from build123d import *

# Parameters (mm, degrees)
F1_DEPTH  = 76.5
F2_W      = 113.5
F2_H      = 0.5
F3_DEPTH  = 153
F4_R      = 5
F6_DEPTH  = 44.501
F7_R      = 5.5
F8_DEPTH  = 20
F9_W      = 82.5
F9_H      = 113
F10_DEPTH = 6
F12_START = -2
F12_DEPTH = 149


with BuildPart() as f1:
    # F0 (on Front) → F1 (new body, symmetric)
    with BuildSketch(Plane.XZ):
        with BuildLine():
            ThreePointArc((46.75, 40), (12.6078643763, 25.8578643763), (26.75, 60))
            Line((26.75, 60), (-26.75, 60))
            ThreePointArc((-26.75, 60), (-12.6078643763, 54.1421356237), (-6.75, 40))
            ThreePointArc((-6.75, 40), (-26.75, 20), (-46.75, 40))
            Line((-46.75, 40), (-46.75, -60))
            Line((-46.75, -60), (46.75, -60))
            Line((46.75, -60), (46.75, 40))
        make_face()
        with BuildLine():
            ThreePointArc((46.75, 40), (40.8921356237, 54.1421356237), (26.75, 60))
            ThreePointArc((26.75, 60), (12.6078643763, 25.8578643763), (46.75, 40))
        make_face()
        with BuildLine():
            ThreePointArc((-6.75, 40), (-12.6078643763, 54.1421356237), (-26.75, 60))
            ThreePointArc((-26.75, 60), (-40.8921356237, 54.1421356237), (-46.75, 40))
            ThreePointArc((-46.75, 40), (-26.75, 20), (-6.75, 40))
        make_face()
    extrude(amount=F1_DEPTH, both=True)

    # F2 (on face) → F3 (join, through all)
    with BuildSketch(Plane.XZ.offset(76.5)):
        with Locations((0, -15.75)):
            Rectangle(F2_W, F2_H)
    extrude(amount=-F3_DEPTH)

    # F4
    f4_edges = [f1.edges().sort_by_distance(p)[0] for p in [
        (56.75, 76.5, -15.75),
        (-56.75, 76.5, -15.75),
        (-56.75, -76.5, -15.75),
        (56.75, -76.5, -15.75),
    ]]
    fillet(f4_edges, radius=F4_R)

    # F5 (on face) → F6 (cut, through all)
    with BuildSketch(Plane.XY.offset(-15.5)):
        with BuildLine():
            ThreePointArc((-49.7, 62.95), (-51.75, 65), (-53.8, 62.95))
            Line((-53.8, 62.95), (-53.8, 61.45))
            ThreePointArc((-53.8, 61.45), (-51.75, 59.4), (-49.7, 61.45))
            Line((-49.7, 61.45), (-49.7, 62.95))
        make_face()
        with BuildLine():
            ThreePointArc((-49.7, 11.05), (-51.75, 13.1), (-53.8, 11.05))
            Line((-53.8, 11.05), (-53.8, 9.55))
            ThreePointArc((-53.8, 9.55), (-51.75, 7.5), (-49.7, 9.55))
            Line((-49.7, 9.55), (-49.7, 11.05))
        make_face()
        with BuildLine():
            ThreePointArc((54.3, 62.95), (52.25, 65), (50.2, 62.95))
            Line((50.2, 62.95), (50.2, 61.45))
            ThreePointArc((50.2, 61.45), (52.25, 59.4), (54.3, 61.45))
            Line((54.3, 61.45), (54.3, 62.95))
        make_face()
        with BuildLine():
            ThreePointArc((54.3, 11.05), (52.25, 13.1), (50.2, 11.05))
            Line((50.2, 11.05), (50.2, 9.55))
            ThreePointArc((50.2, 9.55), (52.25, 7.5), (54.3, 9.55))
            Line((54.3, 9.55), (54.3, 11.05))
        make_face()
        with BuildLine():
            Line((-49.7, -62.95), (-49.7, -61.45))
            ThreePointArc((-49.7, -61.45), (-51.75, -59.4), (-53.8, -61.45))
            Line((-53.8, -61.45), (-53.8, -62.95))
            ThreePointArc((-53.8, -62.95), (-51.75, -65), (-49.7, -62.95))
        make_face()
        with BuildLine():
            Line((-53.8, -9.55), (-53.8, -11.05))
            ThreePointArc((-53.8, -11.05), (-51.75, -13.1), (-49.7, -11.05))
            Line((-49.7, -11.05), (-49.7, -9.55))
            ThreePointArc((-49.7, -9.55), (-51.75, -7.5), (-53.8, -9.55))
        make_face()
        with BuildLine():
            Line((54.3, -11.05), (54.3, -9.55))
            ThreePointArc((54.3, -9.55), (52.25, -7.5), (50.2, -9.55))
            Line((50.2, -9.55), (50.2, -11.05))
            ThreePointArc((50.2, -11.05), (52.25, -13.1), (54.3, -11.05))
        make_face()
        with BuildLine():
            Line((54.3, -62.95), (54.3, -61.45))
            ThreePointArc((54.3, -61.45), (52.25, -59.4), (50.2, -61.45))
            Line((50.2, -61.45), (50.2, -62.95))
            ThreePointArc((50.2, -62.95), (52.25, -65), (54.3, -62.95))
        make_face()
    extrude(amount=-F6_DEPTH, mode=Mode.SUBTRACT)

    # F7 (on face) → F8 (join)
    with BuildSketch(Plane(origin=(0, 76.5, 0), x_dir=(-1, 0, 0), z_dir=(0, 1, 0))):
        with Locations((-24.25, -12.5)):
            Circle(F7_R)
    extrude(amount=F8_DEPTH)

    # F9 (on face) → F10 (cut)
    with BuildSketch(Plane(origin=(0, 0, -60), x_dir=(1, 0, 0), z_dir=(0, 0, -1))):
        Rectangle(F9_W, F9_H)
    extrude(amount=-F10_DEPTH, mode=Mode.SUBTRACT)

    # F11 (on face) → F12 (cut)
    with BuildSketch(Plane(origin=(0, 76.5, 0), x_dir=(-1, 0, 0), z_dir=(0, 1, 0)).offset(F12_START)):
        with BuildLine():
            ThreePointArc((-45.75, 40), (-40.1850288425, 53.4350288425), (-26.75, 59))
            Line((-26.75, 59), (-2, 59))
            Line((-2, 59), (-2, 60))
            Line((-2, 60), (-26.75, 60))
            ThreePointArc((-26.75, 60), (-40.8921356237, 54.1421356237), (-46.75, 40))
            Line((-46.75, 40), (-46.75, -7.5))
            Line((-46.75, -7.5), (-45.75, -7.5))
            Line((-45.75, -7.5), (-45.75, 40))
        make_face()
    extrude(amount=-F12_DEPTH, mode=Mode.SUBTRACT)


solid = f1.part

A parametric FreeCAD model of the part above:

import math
import FreeCAD as App
import Part
import Sketcher

V = App.Vector
Q = App.Units.Quantity


def edges_at(feature, points):
    """Names of the edges that pass closest to the given points."""
    edges = feature.Shape.Edges
    near = lambda p: min(range(len(edges)), key=lambda i: edges[i].distToShape(Part.Vertex(*p))[0])
    return sorted({f"Edge{near(p) + 1}" for p in points})

doc = App.newDocument("Part")
body = doc.addObject("PartDesign::Body", "Body")

sketch1 = doc.addObject("Sketcher::SketchObject", "Sketch")
body.addObject(sketch1)
sketch1.AttachmentSupport = (doc.XZ_Plane, [""])
sketch1.MapMode = "FlatFace"
sketch1.addGeometry([
    Part.LineSegment(V(27, 60, 0), V(-27, 60, 0)),
    Part.ArcOfCircle(Part.Circle(V(-27, 40, 0), V(0, 0, 1), 20), math.radians(90), math.radians(180)),
    Part.LineSegment(V(-47, 40, 0), V(-47, -60, 0)),
    Part.LineSegment(V(-47, -60, 0), V(47, -60, 0)),
    Part.LineSegment(V(47, -60, 0), V(47, 40, 0)),
    Part.ArcOfCircle(Part.Circle(V(27, 40, 0), V(0, 0, 1), 20), math.radians(0), math.radians(90)),
], False)
sketch1.addConstraint([
    Sketcher.Constraint("Tangent", 0, 2, 1, 1),
    Sketcher.Constraint("Tangent", 1, 2, 2, 1),
    Sketcher.Constraint("Coincident", 2, 2, 3, 1),
    Sketcher.Constraint("Coincident", 3, 2, 4, 1),
    Sketcher.Constraint("Tangent", 4, 2, 5, 1),
    Sketcher.Constraint("Tangent", 5, 2, 0, 1),
    Sketcher.Constraint("Horizontal", 0),
    Sketcher.Constraint("Vertical", 2),
    Sketcher.Constraint("Horizontal", 3),
    Sketcher.Constraint("Vertical", 4),
    Sketcher.Constraint("Equal", 1, 5),
    Sketcher.Constraint("Radius", 1, Q("20 mm")),
    Sketcher.Constraint("DistanceY", 2, 2, 2, 1, Q("100 mm")),
    Sketcher.Constraint("DistanceX", 0, 2, 0, 1, Q("53.5 mm")),
    Sketcher.Constraint("DistanceY", -1, 1, 1, 3, Q("40 mm")),
    Sketcher.Constraint("DistanceX", 1, 3, -1, 1, Q("26.75 mm")),
])
pad1 = doc.addObject("PartDesign::Pad", "Pad")
body.addObject(pad1)
pad1.Profile = sketch1
pad1.Length = 153
pad1.Midplane = True

sketch2 = doc.addObject("Sketcher::SketchObject", "Sketch001")
body.addObject(sketch2)
sketch2.AttachmentSupport = (doc.XZ_Plane, [""])
sketch2.MapMode = "FlatFace"
sketch2.AttachmentOffset = App.Placement(V(0, 0, 76.5), App.Rotation())
sketch2.addGeometry([
    Part.LineSegment(V(-56.8, -15.5, 0), V(-56.8, -16, 0)),
    Part.LineSegment(V(-56.8, -16, 0), V(56.8, -16, 0)),
    Part.LineSegment(V(56.8, -16, 0), V(56.8, -15.5, 0)),
    Part.LineSegment(V(56.8, -15.5, 0), V(-56.8, -15.5, 0)),
], False)
sketch2.addConstraint([
    Sketcher.Constraint("Coincident", 0, 2, 1, 1),
    Sketcher.Constraint("Coincident", 1, 2, 2, 1),
    Sketcher.Constraint("Coincident", 2, 2, 3, 1),
    Sketcher.Constraint("Coincident", 3, 2, 0, 1),
    Sketcher.Constraint("Vertical", 0),
    Sketcher.Constraint("Horizontal", 1),
    Sketcher.Constraint("Vertical", 2),
    Sketcher.Constraint("Horizontal", 3),
    Sketcher.Constraint("DistanceX", 1, 1, 1, 2, Q("113.5 mm")),
    Sketcher.Constraint("DistanceY", 0, 2, 0, 1, Q("0.5 mm")),
    Sketcher.Constraint("DistanceY", 0, 2, -1, 1, Q("16 mm")),
    Sketcher.Constraint("DistanceX", 0, 2, -1, 1, Q("56.75 mm")),
])
pad2 = doc.addObject("PartDesign::Pad", "Pad001")
body.addObject(pad2)
pad2.Profile = sketch2
pad2.Type = "UpToLast"
pad2.Reversed = True
doc.recompute()

fillet = doc.addObject("PartDesign::Fillet", "Fillet")
body.addObject(fillet)
fillet.Base = (pad2, edges_at(pad2, [
    (56.75, 76.5, -15.75),
    (-56.75, 76.5, -15.75),
    (-56.75, -76.5, -15.75),
    (56.75, -76.5, -15.75),
]))
fillet.Radius = 5

sketch3 = doc.addObject("Sketcher::SketchObject", "Sketch002")
body.addObject(sketch3)
sketch3.AttachmentSupport = (doc.XY_Plane, [""])
sketch3.MapMode = "FlatFace"
sketch3.AttachmentOffset = App.Placement(V(0, 0, -15.5), App.Rotation())
sketch3.addGeometry([
    Part.ArcOfCircle(Part.Circle(V(-51.8, 63, 0), V(0, 0, 1), 2), math.radians(0), math.radians(180)),
    Part.LineSegment(V(-53.8, 63, 0), V(-53.8, 61.5, 0)),
    Part.ArcOfCircle(Part.Circle(V(-51.8, 61.5, 0), V(0, 0, 1), 2), math.radians(180), math.radians(360)),
    Part.LineSegment(V(-49.7, 61.5, 0), V(-49.7, 63, 0)),
    Part.ArcOfCircle(Part.Circle(V(-51.8, 11.1, 0), V(0, 0, 1), 2), math.radians(0), math.radians(180)),
    Part.LineSegment(V(-53.8, 11.1, 0), V(-53.8, 9.6, 0)),
    Part.ArcOfCircle(Part.Circle(V(-51.8, 9.6, 0), V(0, 0, 1), 2), math.radians(180), math.radians(360)),
    Part.LineSegment(V(-49.7, 9.6, 0), V(-49.7, 11.1, 0)),
    Part.ArcOfCircle(Part.Circle(V(52.2, 63, 0), V(0, 0, 1), 2), math.radians(0), math.radians(180)),
    Part.LineSegment(V(50.2, 63, 0), V(50.2, 61.5, 0)),
    Part.ArcOfCircle(Part.Circle(V(52.2, 61.5, 0), V(0, 0, 1), 2), math.radians(180), math.radians(360)),
    Part.LineSegment(V(54.3, 61.5, 0), V(54.3, 63, 0)),
    Part.ArcOfCircle(Part.Circle(V(52.2, 11.1, 0), V(0, 0, 1), 2), math.radians(0), math.radians(180)),
    Part.LineSegment(V(50.2, 11.1, 0), V(50.2, 9.6, 0)),
    Part.ArcOfCircle(Part.Circle(V(52.2, 9.6, 0), V(0, 0, 1), 2), math.radians(180), math.radians(360)),
    Part.LineSegment(V(54.3, 9.6, 0), V(54.3, 11.1, 0)),
    Part.LineSegment(V(-49.7, -63, 0), V(-49.7, -61.5, 0)),
    Part.ArcOfCircle(Part.Circle(V(-51.8, -61.5, 0), V(0, 0, 1), 2), math.radians(0), math.radians(180)),
    Part.LineSegment(V(-53.8, -61.5, 0), V(-53.8, -63, 0)),
    Part.ArcOfCircle(Part.Circle(V(-51.8, -63, 0), V(0, 0, 1), 2), math.radians(180), math.radians(360)),
    Part.LineSegment(V(-53.8, -9.6, 0), V(-53.8, -11.1, 0)),
    Part.ArcOfCircle(Part.Circle(V(-51.8, -11.1, 0), V(0, 0, 1), 2), math.radians(180), math.radians(360)),
    Part.LineSegment(V(-49.7, -11.1, 0), V(-49.7, -9.6, 0)),
    Part.ArcOfCircle(Part.Circle(V(-51.8, -9.6, 0), V(0, 0, 1), 2), math.radians(0), math.radians(180)),
    Part.LineSegment(V(54.3, -11.1, 0), V(54.3, -9.6, 0)),
    Part.ArcOfCircle(Part.Circle(V(52.2, -9.6, 0), V(0, 0, 1), 2), math.radians(0), math.radians(180)),
    Part.LineSegment(V(50.2, -9.6, 0), V(50.2, -11.1, 0)),
    Part.ArcOfCircle(Part.Circle(V(52.2, -11.1, 0), V(0, 0, 1), 2), math.radians(180), math.radians(360)),
    Part.LineSegment(V(54.3, -63, 0), V(54.3, -61.5, 0)),
    Part.ArcOfCircle(Part.Circle(V(52.2, -61.5, 0), V(0, 0, 1), 2), math.radians(0), math.radians(180)),
    Part.LineSegment(V(50.2, -61.5, 0), V(50.2, -63, 0)),
    Part.ArcOfCircle(Part.Circle(V(52.2, -63, 0), V(0, 0, 1), 2), math.radians(180), math.radians(360)),
], False)
sketch3.addConstraint([
    Sketcher.Constraint("Tangent", 0, 2, 1, 1),
    Sketcher.Constraint("Tangent", 1, 2, 2, 1),
    Sketcher.Constraint("Tangent", 2, 2, 3, 1),
    Sketcher.Constraint("Tangent", 3, 2, 0, 1),
    Sketcher.Constraint("Tangent", 4, 2, 5, 1),
    Sketcher.Constraint("Tangent", 5, 2, 6, 1),
    Sketcher.Constraint("Tangent", 6, 2, 7, 1),
    Sketcher.Constraint("Tangent", 7, 2, 4, 1),
    Sketcher.Constraint("Tangent", 8, 2, 9, 1),
    Sketcher.Constraint("Tangent", 9, 2, 10, 1),
    Sketcher.Constraint("Tangent", 10, 2, 11, 1),
    Sketcher.Constraint("Tangent", 11, 2, 8, 1),
    Sketcher.Constraint("Tangent", 12, 2, 13, 1),
    Sketcher.Constraint("Tangent", 13, 2, 14, 1),
    Sketcher.Constraint("Tangent", 14, 2, 15, 1),
    Sketcher.Constraint("Tangent", 15, 2, 12, 1),
    Sketcher.Constraint("Tangent", 16, 2, 17, 1),
    Sketcher.Constraint("Tangent", 17, 2, 18, 1),
    Sketcher.Constraint("Tangent", 18, 2, 19, 1),
    Sketcher.Constraint("Tangent", 19, 2, 16, 1),
    Sketcher.Constraint("Tangent", 20, 2, 21, 1),
    Sketcher.Constraint("Tangent", 21, 2, 22, 1),
    Sketcher.Constraint("Tangent", 22, 2, 23, 1),
    Sketcher.Constraint("Tangent", 23, 2, 20, 1),
    Sketcher.Constraint("Tangent", 24, 2, 25, 1),
    Sketcher.Constraint("Tangent", 25, 2, 26, 1),
    Sketcher.Constraint("Tangent", 26, 2, 27, 1),
    Sketcher.Constraint("Tangent", 27, 2, 24, 1),
    Sketcher.Constraint("Tangent", 28, 2, 29, 1),
    Sketcher.Constraint("Tangent", 29, 2, 30, 1),
    Sketcher.Constraint("Tangent", 30, 2, 31, 1),
    Sketcher.Constraint("Tangent", 31, 2, 28, 1),
    Sketcher.Constraint("Vertical", 1),
    Sketcher.Constraint("Vertical", 3),
    Sketcher.Constraint("Vertical", 5),
    Sketcher.Constraint("Vertical", 7),
    Sketcher.Constraint("Vertical", 9),
    Sketcher.Constraint("Vertical", 11),
    Sketcher.Constraint("Vertical", 13),
    Sketcher.Constraint("Vertical", 15),
    Sketcher.Constraint("Vertical", 16),
    Sketcher.Constraint("Vertical", 18),
    Sketcher.Constraint("Vertical", 20),
    Sketcher.Constraint("Vertical", 22),
    Sketcher.Constraint("Vertical", 24),
    Sketcher.Constraint("Vertical", 26),
    Sketcher.Constraint("Vertical", 28),
    Sketcher.Constraint("Vertical", 30),
    Sketcher.Constraint("Equal", 2, 4),
    Sketcher.Constraint("Equal", 6, 8),
    Sketcher.Constraint("Equal", 10, 12),
    Sketcher.Constraint("Equal", 14, 17),
    Sketcher.Constraint("Equal", 19, 21),
    Sketcher.Constraint("Equal", 23, 25),
    Sketcher.Constraint("Equal", 27, 29),
    Sketcher.Constraint("Symmetric", 2, 3, 17, 3, -1),
    Sketcher.Constraint("Symmetric", 4, 3, 21, 3, -1),
    Sketcher.Constraint("Symmetric", 14, 3, 25, 3, -1),
    Sketcher.Constraint("Symmetric", 10, 3, 29, 3, -1),
    Sketcher.Constraint("Horizontal", 0, 3, 8, 3),
    Sketcher.Constraint("Horizontal", 2, 3, 10, 3),
    Sketcher.Constraint("Horizontal", 4, 3, 12, 3),
    Sketcher.Constraint("Horizontal", 6, 3, 14, 3),
    Sketcher.Constraint("Horizontal", 23, 3, 25, 3),
    Sketcher.Constraint("Horizontal", 21, 3, 27, 3),
    Sketcher.Constraint("Horizontal", 19, 3, 31, 3),
    Sketcher.Constraint("Vertical", 2, 3, 4, 3),
    Sketcher.Constraint("Vertical", 10, 3, 12, 3),
    Sketcher.Constraint("Equal", 3, 5),
    Sketcher.Constraint("Equal", 15, 16),
    Sketcher.Constraint("Radius", 0, Q("2.05 mm")),
    Sketcher.Constraint("DistanceY", 1, 2, 1, 1, Q("1.5 mm")),
    Sketcher.Constraint("DistanceX", 0, 3, 8, 3, Q("104 mm")),
    Sketcher.Constraint("DistanceY", 17, 3, 6, 3, Q("71 mm")),
    Sketcher.Constraint("DistanceX", 0, 2, -1, 1, Q("53.8 mm")),
    Sketcher.Constraint("DistanceY", 4, 3, 2, 3, Q("50.4 mm")),
])
pocket1 = doc.addObject("PartDesign::Pocket", "Pocket")
body.addObject(pocket1)
pocket1.Profile = sketch3
pocket1.Type = "ThroughAll"

sketch4 = doc.addObject("Sketcher::SketchObject", "Sketch003")
body.addObject(sketch4)
sketch4.AttachmentSupport = (doc.XZ_Plane, [""])
sketch4.MapMode = "FlatFace"
sketch4.AttachmentOffset = App.Placement(V(0, 0, -76.5), App.Rotation())
sketch4.addGeometry(Part.Circle(V(24, -12, 0), V(0, 0, 1), 6), False)
sketch4.addConstraint([
    Sketcher.Constraint("Diameter", 0, Q("11 mm")),
    Sketcher.Constraint("DistanceY", 0, 3, -1, 1, Q("12.5 mm")),
    Sketcher.Constraint("DistanceX", -1, 1, 0, 3, Q("24.25 mm")),
])
pad3 = doc.addObject("PartDesign::Pad", "Pad002")
body.addObject(pad3)
pad3.Profile = sketch4
pad3.Length = 20
pad3.Reversed = True

sketch5 = doc.addObject("Sketcher::SketchObject", "Sketch004")
body.addObject(sketch5)
sketch5.AttachmentSupport = (doc.XY_Plane, [""])
sketch5.MapMode = "FlatFace"
sketch5.AttachmentOffset = App.Placement(V(0, 0, -60), App.Rotation())
sketch5.addGeometry([
    Part.LineSegment(V(-41, -56, 0), V(-41, 56, 0)),
    Part.LineSegment(V(-41, 56, 0), V(41, 56, 0)),
    Part.LineSegment(V(41, 56, 0), V(41, -56, 0)),
    Part.LineSegment(V(41, -56, 0), V(-41, -56, 0)),
], False)
sketch5.addConstraint([
    Sketcher.Constraint("Coincident", 0, 2, 1, 1),
    Sketcher.Constraint("Coincident", 1, 2, 2, 1),
    Sketcher.Constraint("Coincident", 2, 2, 3, 1),
    Sketcher.Constraint("Coincident", 3, 2, 0, 1),
    Sketcher.Constraint("Vertical", 0),
    Sketcher.Constraint("Horizontal", 1),
    Sketcher.Constraint("Vertical", 2),
    Sketcher.Constraint("Horizontal", 3),
    Sketcher.Constraint("Symmetric", 0, 2, 2, 2, -1, 1),
    Sketcher.Constraint("DistanceY", 0, 1, 0, 2, Q("113 mm")),
    Sketcher.Constraint("DistanceX", 1, 1, 1, 2, Q("82.5 mm")),
])
pocket2 = doc.addObject("PartDesign::Pocket", "Pocket001")
body.addObject(pocket2)
pocket2.Profile = sketch5
pocket2.Length = 6
pocket2.Reversed = True

sketch6 = doc.addObject("Sketcher::SketchObject", "Sketch005")
body.addObject(sketch6)
sketch6.AttachmentSupport = (doc.XZ_Plane, [""])
sketch6.MapMode = "FlatFace"
sketch6.AttachmentOffset = App.Placement(V(0, 0, -74.5), App.Rotation())
sketch6.addGeometry([
    Part.ArcOfCircle(Part.Circle(V(26.8, 40, 0), V(0, 0, 1), 19), math.radians(0), math.radians(90)),
    Part.LineSegment(V(26.8, 59, 0), V(2, 59, 0)),
    Part.LineSegment(V(2, 59, 0), V(2, 60, 0)),
    Part.LineSegment(V(2, 60, 0), V(26.8, 60, 0)),
    Part.ArcOfCircle(Part.Circle(V(26.8, 40, 0), V(0, 0, 1), 20), math.radians(0), math.radians(90)),
    Part.LineSegment(V(46.8, 40, 0), V(46.8, -7.5, 0)),
    Part.LineSegment(V(46.8, -7.5, 0), V(45.8, -7.5, 0)),
    Part.LineSegment(V(45.8, -7.5, 0), V(45.8, 40, 0)),
], False)
sketch6.addConstraint([
    Sketcher.Constraint("Tangent", 0, 2, 1, 1),
    Sketcher.Constraint("Coincident", 1, 2, 2, 1),
    Sketcher.Constraint("Coincident", 2, 2, 3, 1),
    Sketcher.Constraint("Tangent", 3, 2, 4, 2),
    Sketcher.Constraint("Tangent", 4, 1, 5, 1),
    Sketcher.Constraint("Coincident", 5, 2, 6, 1),
    Sketcher.Constraint("Coincident", 6, 2, 7, 1),
    Sketcher.Constraint("Tangent", 7, 2, 0, 1),
    Sketcher.Constraint("Horizontal", 1),
    Sketcher.Constraint("Vertical", 2),
    Sketcher.Constraint("Horizontal", 3),
    Sketcher.Constraint("Vertical", 5),
    Sketcher.Constraint("Horizontal", 6),
    Sketcher.Constraint("Vertical", 7),
    Sketcher.Constraint("Coincident", 4, 3, 0, 3),
    Sketcher.Constraint("Radius", 0, Q("19 mm")),
    Sketcher.Constraint("Radius", 4, Q("20 mm")),
    Sketcher.Constraint("DistanceY", 5, 2, 5, 1, Q("47.5 mm")),
    Sketcher.Constraint("DistanceY", -1, 1, 0, 3, Q("40 mm")),
    Sketcher.Constraint("DistanceX", -1, 1, 1, 2, Q("2 mm")),
    Sketcher.Constraint("DistanceX", 1, 2, 1, 1, Q("24.75 mm")),
])
pocket3 = doc.addObject("PartDesign::Pocket", "Pocket002")
body.addObject(pocket3)
pocket3.Profile = sketch6
pocket3.Length = 149
pocket3.Reversed = True

doc.recompute()
